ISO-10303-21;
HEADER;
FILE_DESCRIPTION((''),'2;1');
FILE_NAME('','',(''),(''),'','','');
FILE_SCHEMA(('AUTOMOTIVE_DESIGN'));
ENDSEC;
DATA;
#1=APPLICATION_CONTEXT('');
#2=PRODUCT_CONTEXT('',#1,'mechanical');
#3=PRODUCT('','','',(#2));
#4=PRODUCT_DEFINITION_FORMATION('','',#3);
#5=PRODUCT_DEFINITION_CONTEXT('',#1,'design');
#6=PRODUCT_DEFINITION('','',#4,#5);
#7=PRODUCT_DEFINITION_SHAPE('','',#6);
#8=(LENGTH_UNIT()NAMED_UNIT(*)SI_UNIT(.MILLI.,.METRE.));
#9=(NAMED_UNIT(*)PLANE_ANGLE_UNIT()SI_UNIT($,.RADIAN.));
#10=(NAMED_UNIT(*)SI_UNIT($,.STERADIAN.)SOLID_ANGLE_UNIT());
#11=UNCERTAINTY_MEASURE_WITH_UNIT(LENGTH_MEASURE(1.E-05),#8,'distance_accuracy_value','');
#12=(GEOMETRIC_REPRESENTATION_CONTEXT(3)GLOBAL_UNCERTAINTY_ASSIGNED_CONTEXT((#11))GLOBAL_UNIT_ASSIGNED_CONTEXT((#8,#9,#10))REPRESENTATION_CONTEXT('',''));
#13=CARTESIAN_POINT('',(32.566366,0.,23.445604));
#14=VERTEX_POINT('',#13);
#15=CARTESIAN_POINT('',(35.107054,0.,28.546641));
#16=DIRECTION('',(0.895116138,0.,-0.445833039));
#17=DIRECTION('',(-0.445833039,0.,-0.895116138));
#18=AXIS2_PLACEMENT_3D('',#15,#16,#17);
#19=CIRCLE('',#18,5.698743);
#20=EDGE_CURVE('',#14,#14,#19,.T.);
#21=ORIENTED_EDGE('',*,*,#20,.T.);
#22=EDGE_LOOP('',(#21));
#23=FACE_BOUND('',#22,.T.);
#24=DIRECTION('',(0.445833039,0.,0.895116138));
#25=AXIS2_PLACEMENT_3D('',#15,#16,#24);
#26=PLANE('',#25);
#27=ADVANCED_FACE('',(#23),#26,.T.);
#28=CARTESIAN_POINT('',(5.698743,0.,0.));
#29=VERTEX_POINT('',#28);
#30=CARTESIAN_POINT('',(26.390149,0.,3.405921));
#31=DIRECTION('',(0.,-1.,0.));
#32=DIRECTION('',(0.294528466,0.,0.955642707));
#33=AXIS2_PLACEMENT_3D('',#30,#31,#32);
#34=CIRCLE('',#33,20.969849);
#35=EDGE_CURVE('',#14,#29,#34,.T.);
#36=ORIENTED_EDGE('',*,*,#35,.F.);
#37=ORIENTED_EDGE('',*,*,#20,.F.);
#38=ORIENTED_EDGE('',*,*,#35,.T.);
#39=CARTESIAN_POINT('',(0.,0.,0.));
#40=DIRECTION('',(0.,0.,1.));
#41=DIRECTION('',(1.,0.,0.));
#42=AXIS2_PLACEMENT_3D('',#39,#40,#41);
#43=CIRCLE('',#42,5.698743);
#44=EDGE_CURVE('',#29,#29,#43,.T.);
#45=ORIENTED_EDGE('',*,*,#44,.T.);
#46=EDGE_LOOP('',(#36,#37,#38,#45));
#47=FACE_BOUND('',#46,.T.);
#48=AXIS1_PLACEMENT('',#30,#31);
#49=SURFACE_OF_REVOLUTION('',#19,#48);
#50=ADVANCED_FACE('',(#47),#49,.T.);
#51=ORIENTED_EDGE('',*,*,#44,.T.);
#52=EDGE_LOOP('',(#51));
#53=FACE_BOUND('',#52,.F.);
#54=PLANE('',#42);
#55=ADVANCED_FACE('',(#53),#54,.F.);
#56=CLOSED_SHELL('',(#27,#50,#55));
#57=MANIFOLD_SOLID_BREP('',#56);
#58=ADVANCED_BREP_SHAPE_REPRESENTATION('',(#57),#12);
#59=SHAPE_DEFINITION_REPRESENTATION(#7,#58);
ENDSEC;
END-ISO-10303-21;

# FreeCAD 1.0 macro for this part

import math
import FreeCAD as App
import Part
import Sketcher
Q = App.Units.Quantity

doc = App.newDocument("Part")
body = doc.addObject("PartDesign::Body", "Body")

# Sketch on XY plane
sketch1 = doc.addObject("Sketcher::SketchObject", "Sketch")
body.addObject(sketch1)
sketch1.AttachmentSupport = (doc.XY_Plane, [""])
sketch1.MapMode = "FlatFace"
sketch1.addGeometry(Part.Circle(App.Vector(0, 0, 0), App.Vector(0, 0, 1), 6), False)
sketch1.addConstraint([
    Sketcher.Constraint("Coincident", 0, 3, -1, 1),
    Sketcher.Constraint("Diameter", 0, Q("11.397486 mm")),
])

# Sketch on XZ plane
sketch2 = doc.addObject("Sketcher::SketchObject", "Sketch001")
body.addObject(sketch2)
sketch2.AttachmentSupport = (doc.XZ_Plane, [""])
sketch2.MapMode = "FlatFace"
sketch2.addGeometry(Part.ArcOfCircle(Part.Circle(App.Vector(26, 3, 0), App.Vector(0, 0, 1), 27), math.radians(71), math.radians(187)), False)
sketch2.addConstraint([
    Sketcher.Constraint("Coincident", 0, 2, -1, 1),
    Sketcher.Constraint("Radius", 0, Q("26.609026 mm")),
    Sketcher.Constraint("DistanceX", -1, 1, 0, 3, Q("26.390149 mm")),
    Sketcher.Constraint("DistanceY", -1, 1, 0, 1, Q("28.546641 mm")),
])
doc.recompute()

additivepipe = doc.addObject("PartDesign::AdditivePipe", "AdditivePipe")
body.addObject(additivepipe)
additivepipe.Profile = sketch1
additivepipe.Spine = (sketch2, ["Edge1"])

doc.recompute()
